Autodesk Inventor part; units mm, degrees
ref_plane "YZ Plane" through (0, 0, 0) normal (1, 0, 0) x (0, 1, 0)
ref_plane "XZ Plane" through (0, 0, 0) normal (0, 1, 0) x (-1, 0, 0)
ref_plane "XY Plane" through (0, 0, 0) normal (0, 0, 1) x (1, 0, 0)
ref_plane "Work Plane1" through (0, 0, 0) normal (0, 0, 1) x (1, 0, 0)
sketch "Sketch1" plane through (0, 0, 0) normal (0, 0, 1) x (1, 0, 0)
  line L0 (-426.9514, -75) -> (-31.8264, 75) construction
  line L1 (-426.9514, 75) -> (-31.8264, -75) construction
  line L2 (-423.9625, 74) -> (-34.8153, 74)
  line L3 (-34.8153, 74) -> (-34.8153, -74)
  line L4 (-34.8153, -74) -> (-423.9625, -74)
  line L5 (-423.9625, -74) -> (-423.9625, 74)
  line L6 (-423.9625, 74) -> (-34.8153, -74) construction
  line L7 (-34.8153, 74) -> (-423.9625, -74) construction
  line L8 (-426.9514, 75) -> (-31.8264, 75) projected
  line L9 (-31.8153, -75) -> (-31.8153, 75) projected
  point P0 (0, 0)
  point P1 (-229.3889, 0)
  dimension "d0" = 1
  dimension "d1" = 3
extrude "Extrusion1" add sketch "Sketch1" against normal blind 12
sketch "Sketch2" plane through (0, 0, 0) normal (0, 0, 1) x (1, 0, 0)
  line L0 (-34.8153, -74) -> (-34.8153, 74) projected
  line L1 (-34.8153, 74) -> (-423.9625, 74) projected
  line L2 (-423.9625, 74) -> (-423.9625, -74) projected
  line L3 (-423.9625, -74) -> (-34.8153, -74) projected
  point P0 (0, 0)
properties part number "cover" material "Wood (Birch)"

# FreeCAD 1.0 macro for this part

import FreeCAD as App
import Part
import Sketcher

V = App.Vector
Q = App.Units.Quantity

doc = App.newDocument("Part")
body = doc.addObject("PartDesign::Body", "Body")

sketch1 = body.newObject("Sketcher::SketchObject", "Sketch")
sketch1.AttachmentSupport = (doc.getObject("XY_Plane"), [""])
sketch1.MapMode = "FlatFace"
sketch1.addGeometry(Part.LineSegment(V(-35, 74, 0), V(-424, 74, 0)), False)
sketch1.addGeometry(Part.LineSegment(V(-424, 74, 0), V(-424, -74, 0)), False)
sketch1.addGeometry(Part.LineSegment(V(-424, -74, 0), V(-35, -74, 0)), False)
sketch1.addGeometry(Part.LineSegment(V(-35, -74, 0), V(-35, 74, 0)), False)
sketch1.addConstraint(Sketcher.Constraint("Coincident", 0, 2, 1, 1))
sketch1.addConstraint(Sketcher.Constraint("Coincident", 1, 2, 2, 1))
sketch1.addConstraint(Sketcher.Constraint("Coincident", 2, 2, 3, 1))
sketch1.addConstraint(Sketcher.Constraint("Coincident", 3, 2, 0, 1))
sketch1.addConstraint(Sketcher.Constraint("Horizontal", 0))
sketch1.addConstraint(Sketcher.Constraint("Vertical", 1))
sketch1.addConstraint(Sketcher.Constraint("Horizontal", 2))
sketch1.addConstraint(Sketcher.Constraint("Vertical", 3))
sketch1.addConstraint(Sketcher.Constraint("DistanceY", 1, 2, 1, 1, Q("148 mm")))
sketch1.addConstraint(Sketcher.Constraint("DistanceY", -1, 1, 0, 2, Q("74 mm")))
sketch1.addConstraint(Sketcher.Constraint("DistanceX", 0, 2, 0, 1, Q("389.1472 mm")))
sketch1.addConstraint(Sketcher.Constraint("DistanceX", 0, 2, -1, 1, Q("423.9625 mm")))
pad1 = body.newObject("PartDesign::Pad", "Pad")
pad1.Profile = sketch1
pad1.Length = 12
pad1.Reversed = True

doc.recompute()
